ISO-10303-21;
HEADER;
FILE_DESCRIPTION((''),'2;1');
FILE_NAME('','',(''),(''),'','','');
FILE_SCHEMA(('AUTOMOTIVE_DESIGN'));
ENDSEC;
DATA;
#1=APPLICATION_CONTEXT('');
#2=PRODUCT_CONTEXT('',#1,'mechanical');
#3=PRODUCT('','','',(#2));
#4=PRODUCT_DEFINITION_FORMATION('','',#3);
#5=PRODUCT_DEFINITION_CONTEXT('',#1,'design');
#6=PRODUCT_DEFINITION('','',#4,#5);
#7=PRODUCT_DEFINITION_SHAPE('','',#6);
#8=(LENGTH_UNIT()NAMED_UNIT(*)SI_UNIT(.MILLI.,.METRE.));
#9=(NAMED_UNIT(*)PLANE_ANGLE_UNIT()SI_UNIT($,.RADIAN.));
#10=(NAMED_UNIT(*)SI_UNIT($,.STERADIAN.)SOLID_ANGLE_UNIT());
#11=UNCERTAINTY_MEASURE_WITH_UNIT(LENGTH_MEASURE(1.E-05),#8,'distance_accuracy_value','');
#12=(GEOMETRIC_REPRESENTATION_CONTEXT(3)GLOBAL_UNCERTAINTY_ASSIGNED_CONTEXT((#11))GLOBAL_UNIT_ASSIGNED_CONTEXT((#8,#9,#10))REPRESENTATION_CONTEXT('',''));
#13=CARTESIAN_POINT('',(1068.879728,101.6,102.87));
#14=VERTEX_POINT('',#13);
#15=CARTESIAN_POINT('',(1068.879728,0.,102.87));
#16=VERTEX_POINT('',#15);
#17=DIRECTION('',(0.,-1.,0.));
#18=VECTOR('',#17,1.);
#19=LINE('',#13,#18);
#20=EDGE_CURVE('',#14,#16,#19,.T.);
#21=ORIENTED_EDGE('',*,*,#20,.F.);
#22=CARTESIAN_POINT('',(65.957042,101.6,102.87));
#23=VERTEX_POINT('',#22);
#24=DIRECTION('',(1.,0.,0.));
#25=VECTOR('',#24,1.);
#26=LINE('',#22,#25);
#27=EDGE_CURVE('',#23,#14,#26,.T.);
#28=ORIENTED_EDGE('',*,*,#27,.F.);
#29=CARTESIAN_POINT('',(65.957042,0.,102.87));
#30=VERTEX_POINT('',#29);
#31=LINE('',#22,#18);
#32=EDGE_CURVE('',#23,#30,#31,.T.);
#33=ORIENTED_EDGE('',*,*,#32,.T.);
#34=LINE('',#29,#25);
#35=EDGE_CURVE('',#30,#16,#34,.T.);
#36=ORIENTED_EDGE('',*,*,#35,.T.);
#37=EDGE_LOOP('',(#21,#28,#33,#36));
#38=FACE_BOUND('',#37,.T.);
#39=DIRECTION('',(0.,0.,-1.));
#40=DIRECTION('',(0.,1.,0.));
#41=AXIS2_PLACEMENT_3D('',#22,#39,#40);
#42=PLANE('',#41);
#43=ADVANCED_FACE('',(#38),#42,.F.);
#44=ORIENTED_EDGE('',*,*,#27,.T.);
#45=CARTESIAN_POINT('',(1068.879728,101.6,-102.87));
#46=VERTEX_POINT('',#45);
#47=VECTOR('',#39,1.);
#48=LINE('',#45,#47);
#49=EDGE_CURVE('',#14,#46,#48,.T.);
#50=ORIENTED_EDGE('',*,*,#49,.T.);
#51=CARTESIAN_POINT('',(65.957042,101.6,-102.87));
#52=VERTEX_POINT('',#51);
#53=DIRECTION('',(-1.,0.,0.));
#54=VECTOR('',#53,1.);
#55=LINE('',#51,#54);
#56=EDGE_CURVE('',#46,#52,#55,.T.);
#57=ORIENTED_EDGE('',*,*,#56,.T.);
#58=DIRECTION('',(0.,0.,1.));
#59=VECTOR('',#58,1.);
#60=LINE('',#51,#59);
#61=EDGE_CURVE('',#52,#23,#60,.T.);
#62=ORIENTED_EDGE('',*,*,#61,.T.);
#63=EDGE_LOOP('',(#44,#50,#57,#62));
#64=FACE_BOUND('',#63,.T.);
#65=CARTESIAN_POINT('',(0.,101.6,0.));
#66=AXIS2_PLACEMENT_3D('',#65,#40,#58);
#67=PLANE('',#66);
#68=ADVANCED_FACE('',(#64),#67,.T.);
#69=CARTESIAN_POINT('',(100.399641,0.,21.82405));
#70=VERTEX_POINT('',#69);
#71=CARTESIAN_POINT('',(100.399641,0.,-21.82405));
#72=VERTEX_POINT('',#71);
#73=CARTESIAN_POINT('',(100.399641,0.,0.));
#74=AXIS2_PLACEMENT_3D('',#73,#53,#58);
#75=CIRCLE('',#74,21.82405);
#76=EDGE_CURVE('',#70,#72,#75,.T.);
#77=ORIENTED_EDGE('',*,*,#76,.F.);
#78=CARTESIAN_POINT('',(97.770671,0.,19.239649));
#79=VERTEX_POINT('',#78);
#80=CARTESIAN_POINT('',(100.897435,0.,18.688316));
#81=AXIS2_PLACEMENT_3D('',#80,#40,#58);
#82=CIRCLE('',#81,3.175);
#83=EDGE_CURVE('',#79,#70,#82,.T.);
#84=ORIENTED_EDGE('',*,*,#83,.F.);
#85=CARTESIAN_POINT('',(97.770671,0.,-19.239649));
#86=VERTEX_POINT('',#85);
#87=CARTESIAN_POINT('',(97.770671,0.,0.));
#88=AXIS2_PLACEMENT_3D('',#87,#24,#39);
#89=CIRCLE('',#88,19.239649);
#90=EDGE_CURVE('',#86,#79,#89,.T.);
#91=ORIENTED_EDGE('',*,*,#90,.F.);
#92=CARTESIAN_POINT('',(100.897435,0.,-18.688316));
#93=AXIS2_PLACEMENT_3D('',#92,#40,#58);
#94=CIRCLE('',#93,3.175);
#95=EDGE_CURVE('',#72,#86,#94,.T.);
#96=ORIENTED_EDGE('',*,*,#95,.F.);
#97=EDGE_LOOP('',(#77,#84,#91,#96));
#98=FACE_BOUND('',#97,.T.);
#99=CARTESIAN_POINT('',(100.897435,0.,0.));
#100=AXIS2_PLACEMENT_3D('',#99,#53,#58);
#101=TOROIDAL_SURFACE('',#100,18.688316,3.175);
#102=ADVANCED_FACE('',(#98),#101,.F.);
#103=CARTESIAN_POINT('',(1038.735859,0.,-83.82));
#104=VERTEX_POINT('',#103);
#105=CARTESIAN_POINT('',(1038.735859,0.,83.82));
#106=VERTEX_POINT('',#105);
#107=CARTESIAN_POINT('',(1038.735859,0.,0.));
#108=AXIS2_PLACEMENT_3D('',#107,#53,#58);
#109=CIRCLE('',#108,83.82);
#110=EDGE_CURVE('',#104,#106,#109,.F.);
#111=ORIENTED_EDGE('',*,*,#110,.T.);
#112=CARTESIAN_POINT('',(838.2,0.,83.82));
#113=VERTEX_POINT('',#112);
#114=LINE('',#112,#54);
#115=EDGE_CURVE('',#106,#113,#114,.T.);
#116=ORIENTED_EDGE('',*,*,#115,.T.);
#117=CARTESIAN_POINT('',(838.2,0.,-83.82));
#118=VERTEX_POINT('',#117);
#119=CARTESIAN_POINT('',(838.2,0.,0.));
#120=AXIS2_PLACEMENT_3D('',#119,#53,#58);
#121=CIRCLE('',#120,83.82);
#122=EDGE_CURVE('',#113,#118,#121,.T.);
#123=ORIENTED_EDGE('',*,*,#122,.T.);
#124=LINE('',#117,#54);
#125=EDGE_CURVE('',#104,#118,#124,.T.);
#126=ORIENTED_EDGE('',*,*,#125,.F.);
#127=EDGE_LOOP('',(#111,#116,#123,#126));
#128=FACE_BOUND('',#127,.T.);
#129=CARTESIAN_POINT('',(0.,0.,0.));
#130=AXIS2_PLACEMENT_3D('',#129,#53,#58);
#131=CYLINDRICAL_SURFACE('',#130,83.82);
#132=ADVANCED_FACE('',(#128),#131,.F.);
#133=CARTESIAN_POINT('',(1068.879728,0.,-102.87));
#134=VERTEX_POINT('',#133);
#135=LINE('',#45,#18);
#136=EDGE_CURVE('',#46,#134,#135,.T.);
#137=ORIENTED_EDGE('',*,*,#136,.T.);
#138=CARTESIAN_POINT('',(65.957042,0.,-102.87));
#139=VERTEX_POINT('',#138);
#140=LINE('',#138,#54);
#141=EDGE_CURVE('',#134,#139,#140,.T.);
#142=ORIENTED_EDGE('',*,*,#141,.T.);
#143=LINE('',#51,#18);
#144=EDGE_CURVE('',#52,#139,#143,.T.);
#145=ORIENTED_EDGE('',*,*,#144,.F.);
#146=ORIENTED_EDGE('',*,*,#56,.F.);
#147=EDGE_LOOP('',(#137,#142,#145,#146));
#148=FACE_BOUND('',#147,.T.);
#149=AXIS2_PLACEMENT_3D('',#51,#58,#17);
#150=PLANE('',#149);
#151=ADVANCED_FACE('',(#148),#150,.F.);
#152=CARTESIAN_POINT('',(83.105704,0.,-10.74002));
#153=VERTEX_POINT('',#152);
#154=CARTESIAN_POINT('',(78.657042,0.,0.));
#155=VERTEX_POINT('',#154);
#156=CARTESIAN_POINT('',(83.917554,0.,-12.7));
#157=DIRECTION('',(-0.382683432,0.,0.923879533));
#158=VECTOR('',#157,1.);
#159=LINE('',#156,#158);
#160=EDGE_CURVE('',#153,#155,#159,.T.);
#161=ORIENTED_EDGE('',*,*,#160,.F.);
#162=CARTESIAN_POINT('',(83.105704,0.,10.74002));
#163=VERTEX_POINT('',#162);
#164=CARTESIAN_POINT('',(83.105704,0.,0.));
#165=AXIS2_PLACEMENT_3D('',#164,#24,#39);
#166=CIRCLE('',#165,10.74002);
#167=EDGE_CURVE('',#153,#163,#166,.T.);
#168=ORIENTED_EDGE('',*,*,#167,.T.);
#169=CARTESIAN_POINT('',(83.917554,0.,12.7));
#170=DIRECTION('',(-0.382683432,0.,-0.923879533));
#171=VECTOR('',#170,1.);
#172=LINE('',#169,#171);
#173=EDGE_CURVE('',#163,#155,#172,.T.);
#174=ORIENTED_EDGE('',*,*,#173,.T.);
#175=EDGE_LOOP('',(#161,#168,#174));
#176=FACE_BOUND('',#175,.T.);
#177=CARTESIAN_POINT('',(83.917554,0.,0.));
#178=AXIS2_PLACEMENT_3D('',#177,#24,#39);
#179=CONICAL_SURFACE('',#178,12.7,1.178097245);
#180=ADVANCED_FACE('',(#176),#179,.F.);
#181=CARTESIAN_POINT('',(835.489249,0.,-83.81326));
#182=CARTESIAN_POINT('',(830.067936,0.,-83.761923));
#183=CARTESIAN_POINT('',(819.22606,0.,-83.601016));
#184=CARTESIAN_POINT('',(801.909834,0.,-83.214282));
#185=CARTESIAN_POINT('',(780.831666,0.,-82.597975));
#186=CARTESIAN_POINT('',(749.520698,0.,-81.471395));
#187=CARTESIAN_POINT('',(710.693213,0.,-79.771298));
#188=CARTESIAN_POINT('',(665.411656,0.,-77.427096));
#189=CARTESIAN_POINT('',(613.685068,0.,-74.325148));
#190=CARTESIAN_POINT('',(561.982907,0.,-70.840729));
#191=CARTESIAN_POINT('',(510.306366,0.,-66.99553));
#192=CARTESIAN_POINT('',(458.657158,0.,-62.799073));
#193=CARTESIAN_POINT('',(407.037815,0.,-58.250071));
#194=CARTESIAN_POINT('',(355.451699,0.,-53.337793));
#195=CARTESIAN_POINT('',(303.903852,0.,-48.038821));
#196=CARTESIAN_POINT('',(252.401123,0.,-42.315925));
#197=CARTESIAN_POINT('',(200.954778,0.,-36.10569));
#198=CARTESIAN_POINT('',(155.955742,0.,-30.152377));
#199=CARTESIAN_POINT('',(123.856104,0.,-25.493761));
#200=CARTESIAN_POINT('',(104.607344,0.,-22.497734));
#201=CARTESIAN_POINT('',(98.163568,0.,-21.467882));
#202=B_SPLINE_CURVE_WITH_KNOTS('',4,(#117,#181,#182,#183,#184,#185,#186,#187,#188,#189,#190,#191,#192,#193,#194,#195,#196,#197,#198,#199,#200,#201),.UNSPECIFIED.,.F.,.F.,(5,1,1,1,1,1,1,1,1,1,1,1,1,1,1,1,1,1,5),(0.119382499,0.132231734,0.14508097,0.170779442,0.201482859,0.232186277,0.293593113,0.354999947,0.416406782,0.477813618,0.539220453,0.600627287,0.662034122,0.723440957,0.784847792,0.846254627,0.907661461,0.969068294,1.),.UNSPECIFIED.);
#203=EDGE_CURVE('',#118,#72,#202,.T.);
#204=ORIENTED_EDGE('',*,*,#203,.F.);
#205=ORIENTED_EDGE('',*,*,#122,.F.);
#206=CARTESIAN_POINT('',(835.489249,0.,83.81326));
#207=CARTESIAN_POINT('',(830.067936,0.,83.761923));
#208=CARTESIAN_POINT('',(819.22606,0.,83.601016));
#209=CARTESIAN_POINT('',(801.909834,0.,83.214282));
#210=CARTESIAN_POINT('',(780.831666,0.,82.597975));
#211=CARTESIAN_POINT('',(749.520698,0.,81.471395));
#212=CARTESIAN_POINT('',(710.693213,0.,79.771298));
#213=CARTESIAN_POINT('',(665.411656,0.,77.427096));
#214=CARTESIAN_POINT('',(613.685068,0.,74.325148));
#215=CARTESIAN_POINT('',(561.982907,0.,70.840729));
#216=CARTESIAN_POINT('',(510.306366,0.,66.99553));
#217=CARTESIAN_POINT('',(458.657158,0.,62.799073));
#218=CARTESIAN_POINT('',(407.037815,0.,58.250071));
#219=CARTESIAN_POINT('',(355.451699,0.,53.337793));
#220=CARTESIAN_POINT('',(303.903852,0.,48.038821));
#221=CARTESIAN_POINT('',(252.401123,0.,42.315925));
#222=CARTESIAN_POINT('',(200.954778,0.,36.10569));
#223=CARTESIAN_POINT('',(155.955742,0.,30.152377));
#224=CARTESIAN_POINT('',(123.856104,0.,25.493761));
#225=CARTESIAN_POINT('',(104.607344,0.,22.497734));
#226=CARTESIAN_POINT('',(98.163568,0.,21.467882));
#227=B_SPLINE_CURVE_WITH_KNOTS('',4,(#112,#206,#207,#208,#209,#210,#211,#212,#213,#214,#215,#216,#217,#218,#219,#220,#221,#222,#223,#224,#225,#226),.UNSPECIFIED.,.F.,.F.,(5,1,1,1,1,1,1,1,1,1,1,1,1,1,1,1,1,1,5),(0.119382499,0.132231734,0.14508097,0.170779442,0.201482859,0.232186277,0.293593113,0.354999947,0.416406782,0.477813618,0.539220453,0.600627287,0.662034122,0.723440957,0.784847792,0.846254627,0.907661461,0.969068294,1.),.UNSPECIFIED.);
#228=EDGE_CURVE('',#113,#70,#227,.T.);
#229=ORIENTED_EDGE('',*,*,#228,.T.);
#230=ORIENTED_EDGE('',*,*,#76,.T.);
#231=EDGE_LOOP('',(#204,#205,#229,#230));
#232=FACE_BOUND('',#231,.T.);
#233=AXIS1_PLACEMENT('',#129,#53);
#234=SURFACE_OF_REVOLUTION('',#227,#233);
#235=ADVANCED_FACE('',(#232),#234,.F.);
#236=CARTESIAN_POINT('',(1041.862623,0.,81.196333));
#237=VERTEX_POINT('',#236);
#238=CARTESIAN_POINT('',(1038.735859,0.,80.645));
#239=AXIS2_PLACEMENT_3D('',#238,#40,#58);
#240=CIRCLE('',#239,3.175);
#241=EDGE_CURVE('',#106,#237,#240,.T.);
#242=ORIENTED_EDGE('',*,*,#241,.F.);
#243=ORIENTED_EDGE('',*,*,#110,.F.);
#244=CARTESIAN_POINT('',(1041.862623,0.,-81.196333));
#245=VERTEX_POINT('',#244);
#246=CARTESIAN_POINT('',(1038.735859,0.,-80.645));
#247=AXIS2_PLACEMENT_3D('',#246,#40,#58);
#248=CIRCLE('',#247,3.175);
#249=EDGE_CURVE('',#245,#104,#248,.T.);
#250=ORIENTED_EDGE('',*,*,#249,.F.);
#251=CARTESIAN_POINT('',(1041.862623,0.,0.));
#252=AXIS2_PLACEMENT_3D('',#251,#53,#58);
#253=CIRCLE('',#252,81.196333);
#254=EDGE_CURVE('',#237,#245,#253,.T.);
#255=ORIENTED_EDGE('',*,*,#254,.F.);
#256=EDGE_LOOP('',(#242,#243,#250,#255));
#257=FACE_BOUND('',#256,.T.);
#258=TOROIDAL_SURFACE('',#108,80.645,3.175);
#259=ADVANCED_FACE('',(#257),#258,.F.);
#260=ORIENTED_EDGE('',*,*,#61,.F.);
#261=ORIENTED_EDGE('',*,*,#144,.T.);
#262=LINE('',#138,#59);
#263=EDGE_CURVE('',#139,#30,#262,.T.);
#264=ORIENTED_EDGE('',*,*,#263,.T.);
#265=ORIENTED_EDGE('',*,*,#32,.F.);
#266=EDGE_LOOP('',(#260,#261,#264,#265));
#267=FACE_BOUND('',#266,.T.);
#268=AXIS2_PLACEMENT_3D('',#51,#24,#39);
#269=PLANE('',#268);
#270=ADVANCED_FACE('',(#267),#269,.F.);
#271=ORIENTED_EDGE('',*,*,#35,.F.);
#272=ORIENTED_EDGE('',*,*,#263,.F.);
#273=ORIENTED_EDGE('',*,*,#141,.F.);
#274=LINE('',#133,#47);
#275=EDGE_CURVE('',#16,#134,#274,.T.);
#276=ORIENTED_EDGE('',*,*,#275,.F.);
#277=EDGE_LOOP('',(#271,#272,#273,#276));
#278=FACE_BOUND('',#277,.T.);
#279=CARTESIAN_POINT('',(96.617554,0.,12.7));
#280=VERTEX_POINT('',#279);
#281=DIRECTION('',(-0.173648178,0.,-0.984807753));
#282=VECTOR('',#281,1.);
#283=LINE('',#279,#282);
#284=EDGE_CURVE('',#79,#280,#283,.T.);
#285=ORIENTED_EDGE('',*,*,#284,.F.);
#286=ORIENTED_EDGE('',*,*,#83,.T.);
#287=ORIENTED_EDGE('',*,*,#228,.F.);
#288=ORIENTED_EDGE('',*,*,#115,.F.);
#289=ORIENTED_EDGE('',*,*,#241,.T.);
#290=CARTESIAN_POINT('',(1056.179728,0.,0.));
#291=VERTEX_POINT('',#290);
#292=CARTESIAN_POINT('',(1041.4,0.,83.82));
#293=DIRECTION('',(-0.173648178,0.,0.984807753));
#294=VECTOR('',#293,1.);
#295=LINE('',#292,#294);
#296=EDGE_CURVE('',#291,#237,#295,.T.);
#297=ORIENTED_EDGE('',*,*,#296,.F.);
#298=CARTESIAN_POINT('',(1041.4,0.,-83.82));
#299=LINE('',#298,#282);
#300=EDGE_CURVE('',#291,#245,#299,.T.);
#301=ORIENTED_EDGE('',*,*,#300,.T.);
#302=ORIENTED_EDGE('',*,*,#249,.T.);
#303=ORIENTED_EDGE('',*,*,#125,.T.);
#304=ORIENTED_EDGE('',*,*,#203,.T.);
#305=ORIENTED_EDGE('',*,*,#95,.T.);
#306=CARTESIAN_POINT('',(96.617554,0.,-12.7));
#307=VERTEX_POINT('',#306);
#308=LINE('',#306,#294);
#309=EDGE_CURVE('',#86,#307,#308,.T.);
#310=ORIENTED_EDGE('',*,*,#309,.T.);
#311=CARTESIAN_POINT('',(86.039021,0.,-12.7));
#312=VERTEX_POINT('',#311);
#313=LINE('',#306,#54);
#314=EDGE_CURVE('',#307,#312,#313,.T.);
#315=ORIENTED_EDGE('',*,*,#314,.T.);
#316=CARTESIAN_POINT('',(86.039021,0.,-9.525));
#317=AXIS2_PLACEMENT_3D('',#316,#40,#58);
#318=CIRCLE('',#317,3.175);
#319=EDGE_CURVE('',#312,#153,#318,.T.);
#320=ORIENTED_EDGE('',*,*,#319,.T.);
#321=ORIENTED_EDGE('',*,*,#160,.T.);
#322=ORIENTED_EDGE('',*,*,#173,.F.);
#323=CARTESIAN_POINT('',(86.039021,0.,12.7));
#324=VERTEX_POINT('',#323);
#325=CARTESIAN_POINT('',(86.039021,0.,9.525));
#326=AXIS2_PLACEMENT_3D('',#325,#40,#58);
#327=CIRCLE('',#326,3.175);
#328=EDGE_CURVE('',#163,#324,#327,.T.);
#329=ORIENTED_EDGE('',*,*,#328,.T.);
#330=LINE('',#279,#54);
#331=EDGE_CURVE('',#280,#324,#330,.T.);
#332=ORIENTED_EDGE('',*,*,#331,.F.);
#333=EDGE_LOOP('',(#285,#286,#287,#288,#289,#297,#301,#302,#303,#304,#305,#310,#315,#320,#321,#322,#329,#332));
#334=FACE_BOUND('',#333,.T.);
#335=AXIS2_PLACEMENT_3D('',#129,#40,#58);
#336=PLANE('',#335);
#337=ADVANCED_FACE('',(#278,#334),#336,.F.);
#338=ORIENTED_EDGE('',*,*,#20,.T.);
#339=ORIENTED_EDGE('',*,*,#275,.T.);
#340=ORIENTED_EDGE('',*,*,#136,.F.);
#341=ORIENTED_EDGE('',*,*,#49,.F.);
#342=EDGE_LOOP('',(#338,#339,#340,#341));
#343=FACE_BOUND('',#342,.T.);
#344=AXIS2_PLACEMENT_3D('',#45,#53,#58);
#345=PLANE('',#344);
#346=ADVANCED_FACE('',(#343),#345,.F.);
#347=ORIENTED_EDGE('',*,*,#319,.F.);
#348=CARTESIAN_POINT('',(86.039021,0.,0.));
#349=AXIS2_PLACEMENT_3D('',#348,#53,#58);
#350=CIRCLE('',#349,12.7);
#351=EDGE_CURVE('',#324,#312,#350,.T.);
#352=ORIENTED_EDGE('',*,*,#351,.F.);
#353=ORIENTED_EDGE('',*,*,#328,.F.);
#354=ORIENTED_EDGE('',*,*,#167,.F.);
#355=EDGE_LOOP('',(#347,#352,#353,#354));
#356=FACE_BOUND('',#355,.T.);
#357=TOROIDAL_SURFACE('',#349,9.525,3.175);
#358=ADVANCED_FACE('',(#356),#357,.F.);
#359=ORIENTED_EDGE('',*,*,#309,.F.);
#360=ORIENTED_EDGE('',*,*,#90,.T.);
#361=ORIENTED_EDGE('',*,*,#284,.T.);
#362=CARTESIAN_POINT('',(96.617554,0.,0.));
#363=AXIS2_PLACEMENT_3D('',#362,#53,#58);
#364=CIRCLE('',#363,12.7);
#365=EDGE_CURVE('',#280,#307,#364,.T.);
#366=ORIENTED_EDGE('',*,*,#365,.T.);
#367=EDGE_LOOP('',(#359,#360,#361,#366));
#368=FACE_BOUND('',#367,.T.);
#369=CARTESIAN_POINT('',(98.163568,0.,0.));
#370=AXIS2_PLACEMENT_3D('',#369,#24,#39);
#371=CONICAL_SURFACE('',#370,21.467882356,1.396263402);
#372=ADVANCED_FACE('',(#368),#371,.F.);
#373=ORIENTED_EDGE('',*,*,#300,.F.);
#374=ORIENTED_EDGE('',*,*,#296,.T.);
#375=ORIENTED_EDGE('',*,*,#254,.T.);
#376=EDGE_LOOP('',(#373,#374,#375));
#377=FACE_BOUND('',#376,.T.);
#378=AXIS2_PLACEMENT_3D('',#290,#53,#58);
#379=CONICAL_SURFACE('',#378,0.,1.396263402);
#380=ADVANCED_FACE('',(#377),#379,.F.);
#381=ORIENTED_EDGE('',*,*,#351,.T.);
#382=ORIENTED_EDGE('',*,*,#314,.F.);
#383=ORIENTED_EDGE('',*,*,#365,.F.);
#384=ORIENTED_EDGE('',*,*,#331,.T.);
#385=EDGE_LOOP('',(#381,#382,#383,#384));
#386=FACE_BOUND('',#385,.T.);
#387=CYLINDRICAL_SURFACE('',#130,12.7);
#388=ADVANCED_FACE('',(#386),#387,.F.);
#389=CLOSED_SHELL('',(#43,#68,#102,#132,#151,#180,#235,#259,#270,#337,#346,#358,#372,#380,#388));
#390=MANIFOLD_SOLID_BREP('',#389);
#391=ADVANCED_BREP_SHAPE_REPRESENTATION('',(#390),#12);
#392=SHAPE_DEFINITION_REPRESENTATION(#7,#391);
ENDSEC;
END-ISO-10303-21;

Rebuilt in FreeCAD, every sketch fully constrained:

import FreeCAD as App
import Part
import Sketcher
Q = App.Units.Quantity


def edges_at(feature, points):
    """Names of the edges that pass closest to the given points."""
    edges = feature.Shape.Edges
    near = lambda p: min(range(len(edges)), key=lambda i: edges[i].distToShape(Part.Vertex(*p))[0])
    return sorted({f"Edge{near(p) + 1}" for p in points})


def add_polygon(sketch, points):
    """Adds a closed chain of lines whose ends are joined by coincident constraints."""
    first, n = sketch.GeometryCount, len(points)
    for a, b in zip(points, points[1:] + points[:1]):
        sketch.addGeometry(Part.LineSegment(App.Vector(*a, 0), App.Vector(*b, 0)), False)
    for i in range(n):
        sketch.addConstraint(Sketcher.Constraint("Coincident", first + i, 2, first + (i + 1) % n, 1))

doc = App.newDocument("Part")
body = doc.addObject("PartDesign::Body", "Body")

sketch1 = body.newObject("Sketcher::SketchObject", "Sketch")
sketch1.AttachmentSupport = (doc.getObject("XZ_Plane"), [""])
sketch1.MapMode = "FlatFace"
sketch1.addGeometry(Part.LineSegment(App.Vector(1041.4, -83.82, 0), App.Vector(838.2, -83.82, 0)), False)
sketch1.addGeometry(Part.BSplineCurve([App.Vector(98.163568, -21.467882, 0), App.Vector(104.607344, -22.497734, 0), App.Vector(123.856104, -25.493761, 0), App.Vector(155.955742, -30.152377, 0), App.Vector(200.954778, -36.10569, 0), App.Vector(252.401123, -42.315925, 0), App.Vector(303.903852, -48.038821, 0), App.Vector(355.451699, -53.337793, 0), App.Vector(407.037815, -58.250071, 0), App.Vector(458.657158, -62.799073, 0), App.Vector(510.306366, -66.99553, 0), App.Vector(561.982907, -70.840729, 0), App.Vector(613.685068, -74.325148, 0), App.Vector(665.411656, -77.427096, 0), App.Vector(710.693213, -79.771298, 0), App.Vector(749.520698, -81.471395, 0), App.Vector(780.831666, -82.597975, 0), App.Vector(801.909834, -83.214282, 0), App.Vector(819.22606, -83.601016, 0), App.Vector(830.067936, -83.761923, 0), App.Vector(835.489249, -83.81326, 0), App.Vector(838.2, -83.82, 0)], [5, 1, 1, 1, 1, 1, 1, 1, 1, 1, 1, 1, 1, 1, 1, 1, 1, 1, 5], [0.119382499, 0.150314205, 0.211721038, 0.273127872, 0.334534706, 0.395941541, 0.457348376, 0.518755211, 0.580162046, 0.641568881, 0.702975716, 0.764382551, 0.825789386, 0.887196222, 0.917899639, 0.948603057, 0.974301528, 0.987150764, 1], False, 4, [1, 1, 1, 1, 1, 1, 1, 1, 1, 1, 1, 1, 1, 1, 1, 1, 1, 1, 1, 1, 1, 1], False), False)
sketch1.addGeometry(Part.LineSegment(App.Vector(98.163568, -21.467882, 0), App.Vector(96.617554, -12.7, 0)), False)
sketch1.addGeometry(Part.LineSegment(App.Vector(96.617554, -12.7, 0), App.Vector(83.917554, -12.7, 0)), False)
sketch1.addGeometry(Part.LineSegment(App.Vector(83.917554, -12.7, 0), App.Vector(78.657042, 0, 0)), False)
sketch1.addGeometry(Part.LineSegment(App.Vector(78.657042, 0, 0), App.Vector(1056.179728, 0, 0)), False)
sketch1.addGeometry(Part.LineSegment(App.Vector(1056.179728, 0, 0), App.Vector(1041.4, -83.82, 0)), False)
sketch1.addConstraint(Sketcher.Constraint("Block", 1))
sketch1.addConstraint(Sketcher.Constraint("Coincident", 0, 2, 1, 2))
sketch1.addConstraint(Sketcher.Constraint("Coincident", 1, 1, 2, 1))
sketch1.addConstraint(Sketcher.Constraint("Coincident", 2, 2, 3, 1))
sketch1.addConstraint(Sketcher.Constraint("Coincident", 3, 2, 4, 1))
sketch1.addConstraint(Sketcher.Constraint("Coincident", 4, 2, 5, 1))
sketch1.addConstraint(Sketcher.Constraint("Coincident", 5, 2, 6, 1))
sketch1.addConstraint(Sketcher.Constraint("Coincident", 6, 2, 0, 1))
sketch1.addConstraint(Sketcher.Constraint("Horizontal", 0))
sketch1.addConstraint(Sketcher.Constraint("Horizontal", 3))
sketch1.addConstraint(Sketcher.Constraint("Horizontal", 5))
sketch1.addConstraint(Sketcher.Constraint("PointOnObject", 4, 2, -1))
sketch1.addConstraint(Sketcher.Constraint("DistanceX", 0, 2, 0, 1, Q("8 in")))
sketch1.addConstraint(Sketcher.Constraint("DistanceX", 3, 2, 3, 1, Q("0.5 in")))
sketch1.addConstraint(Sketcher.Constraint("Angle", 2, Q("100 deg")))
sketch1.addConstraint(Sketcher.Constraint("Angle", 6, Q("-100 deg")))
sketch1.addConstraint(Sketcher.Constraint("DistanceY", 2, 2, -1, 1, Q("0.5 in")))
sketch1.addConstraint(Sketcher.Constraint("Angle", 4, Q("112.5 deg")))
revolution = body.newObject("PartDesign::Revolution", "Revolution")
revolution.Profile = sketch1
revolution.ReferenceAxis = (sketch1, ["H_Axis"])
revolution.Angle = 180

sketch2 = body.newObject("Sketcher::SketchObject", "Sketch001")
sketch2.AttachmentSupport = (doc.getObject("XZ_Plane"), [""])
sketch2.MapMode = "FlatFace"
add_polygon(sketch2, [(65.957042, 102.87), (65.957042, -102.87), (1068.879728, -102.87), (1068.879728, 102.87)])
sketch2.addConstraint(Sketcher.Constraint("Vertical", 0))
sketch2.addConstraint(Sketcher.Constraint("Horizontal", 1))
sketch2.addConstraint(Sketcher.Constraint("Vertical", 2))
sketch2.addConstraint(Sketcher.Constraint("Horizontal", 3))
sketch2.addConstraint(Sketcher.Constraint("DistanceY", 0, 2, 0, 1, Q("8.1 in")))
sketch2.addConstraint(Sketcher.Constraint("DistanceY", 0, 2, -1, 1, Q("4.05 in")))
sketch2.addConstraint(Sketcher.Constraint("DistanceX", 1, 1, 1, 2, Q("1002.922686 mm")))
sketch2.addConstraint(Sketcher.Constraint("DistanceX", -1, 1, 0, 2, Q("65.957042 mm")))
pad1 = body.newObject("PartDesign::Pad", "Pad")
pad1.Profile = sketch2
pad1.Length = Q("1.5 in")
body2 = doc.addObject("PartDesign::Body", "Body001")

sketch3 = body2.newObject("Sketcher::SketchObject", "Sketch002")
sketch3.AttachmentSupport = (doc.getObject("XZ_Plane001"), [""])
sketch3.MapMode = "FlatFace"
add_polygon(sketch3, [(65.957042, -102.87), (65.957042, 102.87), (1068.879728, 102.87), (1068.879728, -102.87)])
sketch3.addConstraint(Sketcher.Constraint("Vertical", 0))
sketch3.addConstraint(Sketcher.Constraint("Horizontal", 1))
sketch3.addConstraint(Sketcher.Constraint("Vertical", 2))
sketch3.addConstraint(Sketcher.Constraint("Horizontal", 3))
sketch3.addConstraint(Sketcher.Constraint("DistanceY", 0, 1, 0, 2, Q("8.1 in")))
sketch3.addConstraint(Sketcher.Constraint("DistanceY", -1, 1, 0, 2, Q("4.05 in")))
sketch3.addConstraint(Sketcher.Constraint("DistanceX", 1, 1, 1, 2, Q("1002.922686 mm")))
sketch3.addConstraint(Sketcher.Constraint("DistanceX", -1, 1, 0, 2, Q("65.957042 mm")))
pad2 = body2.newObject("PartDesign::Pad", "Pad001")
pad2.Profile = sketch3
pad2.Length = Q("4 in")
pad2.Reversed = True
doc.recompute()

boolean = body2.newObject("PartDesign::Boolean", "Boolean")
boolean.Type = "Cut"
boolean.addObjects([body])
doc.recompute()

fillet = body2.newObject("PartDesign::Fillet", "Fillet")
fillet.Base = (boolean, edges_at(boolean, [(1041.4, 83.82, 0), (98.164, 21.468, 0), (83.918, 12.7, 0)]))
fillet.Radius = Q("0.125 in")

doc.recompute()
